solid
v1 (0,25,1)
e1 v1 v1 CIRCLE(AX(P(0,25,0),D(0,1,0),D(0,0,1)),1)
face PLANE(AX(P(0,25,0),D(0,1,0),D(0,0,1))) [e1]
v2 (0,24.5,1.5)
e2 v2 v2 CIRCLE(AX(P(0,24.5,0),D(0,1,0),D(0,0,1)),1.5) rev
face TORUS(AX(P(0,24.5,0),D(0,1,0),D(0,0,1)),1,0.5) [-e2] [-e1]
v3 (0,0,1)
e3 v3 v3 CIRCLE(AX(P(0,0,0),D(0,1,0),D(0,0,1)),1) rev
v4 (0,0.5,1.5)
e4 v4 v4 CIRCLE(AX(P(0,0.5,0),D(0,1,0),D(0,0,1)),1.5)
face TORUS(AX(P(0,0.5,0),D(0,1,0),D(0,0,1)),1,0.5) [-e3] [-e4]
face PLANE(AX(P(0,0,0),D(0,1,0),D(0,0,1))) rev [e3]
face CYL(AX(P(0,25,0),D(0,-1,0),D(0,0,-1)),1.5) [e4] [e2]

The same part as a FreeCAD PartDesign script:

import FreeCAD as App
import Part
import Sketcher
from FreeCAD import Vector


def edges_at(feature, points):
    """Names of the edges that pass closest to the given points."""
    edges = feature.Shape.Edges
    near = lambda p: min(range(len(edges)), key=lambda i: edges[i].distToShape(Part.Vertex(*p))[0])
    return sorted({f"Edge{near(p) + 1}" for p in points})

doc = App.newDocument("Part")
params = doc.addObject("Spreadsheet::Sheet", "Params")
for row, (alias, value) in enumerate([
    ("sketch1_diameter", "3 mm"),
    ("pad1_length", "25 mm"),
    ("fillet_radius", "0.5 mm"),
], start=1):
    params.set(f"A{row}", alias)
    params.set(f"B{row}", "=" + value)
    params.setAlias(f"B{row}", alias)

body = doc.addObject("PartDesign::Body", "Body")

sketch1 = doc.addObject("Sketcher::SketchObject", "Sketch")
body.addObject(sketch1)
sketch1.AttachmentSupport = (doc.XZ_Plane, [""])
sketch1.MapMode = "FlatFace"
sketch1.addGeometry(Part.Circle(Vector(0, 0, 0), Vector(0, 0, 1), 1.5), False)
sketch1.addConstraint([
    Sketcher.Constraint("Coincident", 0, 3, -1, 1),
    Sketcher.Constraint("Diameter", 0, 3.0),
])
sketch1.setExpression("Constraints[1]", "Params.sketch1_diameter")
pad1 = doc.addObject("PartDesign::Pad", "Pad")
body.addObject(pad1)
pad1.Profile = sketch1
pad1.setExpression("Length", "Params.pad1_length")
pad1.Reversed = True
doc.recompute()

fillet = doc.addObject("PartDesign::Fillet", "Fillet")
body.addObject(fillet)
fillet.Base = (pad1, edges_at(pad1, [(-1.5, 0, 0), (-1.5, 25, 0)]))
fillet.setExpression("Radius", "Params.fillet_radius")

doc.recompute()
